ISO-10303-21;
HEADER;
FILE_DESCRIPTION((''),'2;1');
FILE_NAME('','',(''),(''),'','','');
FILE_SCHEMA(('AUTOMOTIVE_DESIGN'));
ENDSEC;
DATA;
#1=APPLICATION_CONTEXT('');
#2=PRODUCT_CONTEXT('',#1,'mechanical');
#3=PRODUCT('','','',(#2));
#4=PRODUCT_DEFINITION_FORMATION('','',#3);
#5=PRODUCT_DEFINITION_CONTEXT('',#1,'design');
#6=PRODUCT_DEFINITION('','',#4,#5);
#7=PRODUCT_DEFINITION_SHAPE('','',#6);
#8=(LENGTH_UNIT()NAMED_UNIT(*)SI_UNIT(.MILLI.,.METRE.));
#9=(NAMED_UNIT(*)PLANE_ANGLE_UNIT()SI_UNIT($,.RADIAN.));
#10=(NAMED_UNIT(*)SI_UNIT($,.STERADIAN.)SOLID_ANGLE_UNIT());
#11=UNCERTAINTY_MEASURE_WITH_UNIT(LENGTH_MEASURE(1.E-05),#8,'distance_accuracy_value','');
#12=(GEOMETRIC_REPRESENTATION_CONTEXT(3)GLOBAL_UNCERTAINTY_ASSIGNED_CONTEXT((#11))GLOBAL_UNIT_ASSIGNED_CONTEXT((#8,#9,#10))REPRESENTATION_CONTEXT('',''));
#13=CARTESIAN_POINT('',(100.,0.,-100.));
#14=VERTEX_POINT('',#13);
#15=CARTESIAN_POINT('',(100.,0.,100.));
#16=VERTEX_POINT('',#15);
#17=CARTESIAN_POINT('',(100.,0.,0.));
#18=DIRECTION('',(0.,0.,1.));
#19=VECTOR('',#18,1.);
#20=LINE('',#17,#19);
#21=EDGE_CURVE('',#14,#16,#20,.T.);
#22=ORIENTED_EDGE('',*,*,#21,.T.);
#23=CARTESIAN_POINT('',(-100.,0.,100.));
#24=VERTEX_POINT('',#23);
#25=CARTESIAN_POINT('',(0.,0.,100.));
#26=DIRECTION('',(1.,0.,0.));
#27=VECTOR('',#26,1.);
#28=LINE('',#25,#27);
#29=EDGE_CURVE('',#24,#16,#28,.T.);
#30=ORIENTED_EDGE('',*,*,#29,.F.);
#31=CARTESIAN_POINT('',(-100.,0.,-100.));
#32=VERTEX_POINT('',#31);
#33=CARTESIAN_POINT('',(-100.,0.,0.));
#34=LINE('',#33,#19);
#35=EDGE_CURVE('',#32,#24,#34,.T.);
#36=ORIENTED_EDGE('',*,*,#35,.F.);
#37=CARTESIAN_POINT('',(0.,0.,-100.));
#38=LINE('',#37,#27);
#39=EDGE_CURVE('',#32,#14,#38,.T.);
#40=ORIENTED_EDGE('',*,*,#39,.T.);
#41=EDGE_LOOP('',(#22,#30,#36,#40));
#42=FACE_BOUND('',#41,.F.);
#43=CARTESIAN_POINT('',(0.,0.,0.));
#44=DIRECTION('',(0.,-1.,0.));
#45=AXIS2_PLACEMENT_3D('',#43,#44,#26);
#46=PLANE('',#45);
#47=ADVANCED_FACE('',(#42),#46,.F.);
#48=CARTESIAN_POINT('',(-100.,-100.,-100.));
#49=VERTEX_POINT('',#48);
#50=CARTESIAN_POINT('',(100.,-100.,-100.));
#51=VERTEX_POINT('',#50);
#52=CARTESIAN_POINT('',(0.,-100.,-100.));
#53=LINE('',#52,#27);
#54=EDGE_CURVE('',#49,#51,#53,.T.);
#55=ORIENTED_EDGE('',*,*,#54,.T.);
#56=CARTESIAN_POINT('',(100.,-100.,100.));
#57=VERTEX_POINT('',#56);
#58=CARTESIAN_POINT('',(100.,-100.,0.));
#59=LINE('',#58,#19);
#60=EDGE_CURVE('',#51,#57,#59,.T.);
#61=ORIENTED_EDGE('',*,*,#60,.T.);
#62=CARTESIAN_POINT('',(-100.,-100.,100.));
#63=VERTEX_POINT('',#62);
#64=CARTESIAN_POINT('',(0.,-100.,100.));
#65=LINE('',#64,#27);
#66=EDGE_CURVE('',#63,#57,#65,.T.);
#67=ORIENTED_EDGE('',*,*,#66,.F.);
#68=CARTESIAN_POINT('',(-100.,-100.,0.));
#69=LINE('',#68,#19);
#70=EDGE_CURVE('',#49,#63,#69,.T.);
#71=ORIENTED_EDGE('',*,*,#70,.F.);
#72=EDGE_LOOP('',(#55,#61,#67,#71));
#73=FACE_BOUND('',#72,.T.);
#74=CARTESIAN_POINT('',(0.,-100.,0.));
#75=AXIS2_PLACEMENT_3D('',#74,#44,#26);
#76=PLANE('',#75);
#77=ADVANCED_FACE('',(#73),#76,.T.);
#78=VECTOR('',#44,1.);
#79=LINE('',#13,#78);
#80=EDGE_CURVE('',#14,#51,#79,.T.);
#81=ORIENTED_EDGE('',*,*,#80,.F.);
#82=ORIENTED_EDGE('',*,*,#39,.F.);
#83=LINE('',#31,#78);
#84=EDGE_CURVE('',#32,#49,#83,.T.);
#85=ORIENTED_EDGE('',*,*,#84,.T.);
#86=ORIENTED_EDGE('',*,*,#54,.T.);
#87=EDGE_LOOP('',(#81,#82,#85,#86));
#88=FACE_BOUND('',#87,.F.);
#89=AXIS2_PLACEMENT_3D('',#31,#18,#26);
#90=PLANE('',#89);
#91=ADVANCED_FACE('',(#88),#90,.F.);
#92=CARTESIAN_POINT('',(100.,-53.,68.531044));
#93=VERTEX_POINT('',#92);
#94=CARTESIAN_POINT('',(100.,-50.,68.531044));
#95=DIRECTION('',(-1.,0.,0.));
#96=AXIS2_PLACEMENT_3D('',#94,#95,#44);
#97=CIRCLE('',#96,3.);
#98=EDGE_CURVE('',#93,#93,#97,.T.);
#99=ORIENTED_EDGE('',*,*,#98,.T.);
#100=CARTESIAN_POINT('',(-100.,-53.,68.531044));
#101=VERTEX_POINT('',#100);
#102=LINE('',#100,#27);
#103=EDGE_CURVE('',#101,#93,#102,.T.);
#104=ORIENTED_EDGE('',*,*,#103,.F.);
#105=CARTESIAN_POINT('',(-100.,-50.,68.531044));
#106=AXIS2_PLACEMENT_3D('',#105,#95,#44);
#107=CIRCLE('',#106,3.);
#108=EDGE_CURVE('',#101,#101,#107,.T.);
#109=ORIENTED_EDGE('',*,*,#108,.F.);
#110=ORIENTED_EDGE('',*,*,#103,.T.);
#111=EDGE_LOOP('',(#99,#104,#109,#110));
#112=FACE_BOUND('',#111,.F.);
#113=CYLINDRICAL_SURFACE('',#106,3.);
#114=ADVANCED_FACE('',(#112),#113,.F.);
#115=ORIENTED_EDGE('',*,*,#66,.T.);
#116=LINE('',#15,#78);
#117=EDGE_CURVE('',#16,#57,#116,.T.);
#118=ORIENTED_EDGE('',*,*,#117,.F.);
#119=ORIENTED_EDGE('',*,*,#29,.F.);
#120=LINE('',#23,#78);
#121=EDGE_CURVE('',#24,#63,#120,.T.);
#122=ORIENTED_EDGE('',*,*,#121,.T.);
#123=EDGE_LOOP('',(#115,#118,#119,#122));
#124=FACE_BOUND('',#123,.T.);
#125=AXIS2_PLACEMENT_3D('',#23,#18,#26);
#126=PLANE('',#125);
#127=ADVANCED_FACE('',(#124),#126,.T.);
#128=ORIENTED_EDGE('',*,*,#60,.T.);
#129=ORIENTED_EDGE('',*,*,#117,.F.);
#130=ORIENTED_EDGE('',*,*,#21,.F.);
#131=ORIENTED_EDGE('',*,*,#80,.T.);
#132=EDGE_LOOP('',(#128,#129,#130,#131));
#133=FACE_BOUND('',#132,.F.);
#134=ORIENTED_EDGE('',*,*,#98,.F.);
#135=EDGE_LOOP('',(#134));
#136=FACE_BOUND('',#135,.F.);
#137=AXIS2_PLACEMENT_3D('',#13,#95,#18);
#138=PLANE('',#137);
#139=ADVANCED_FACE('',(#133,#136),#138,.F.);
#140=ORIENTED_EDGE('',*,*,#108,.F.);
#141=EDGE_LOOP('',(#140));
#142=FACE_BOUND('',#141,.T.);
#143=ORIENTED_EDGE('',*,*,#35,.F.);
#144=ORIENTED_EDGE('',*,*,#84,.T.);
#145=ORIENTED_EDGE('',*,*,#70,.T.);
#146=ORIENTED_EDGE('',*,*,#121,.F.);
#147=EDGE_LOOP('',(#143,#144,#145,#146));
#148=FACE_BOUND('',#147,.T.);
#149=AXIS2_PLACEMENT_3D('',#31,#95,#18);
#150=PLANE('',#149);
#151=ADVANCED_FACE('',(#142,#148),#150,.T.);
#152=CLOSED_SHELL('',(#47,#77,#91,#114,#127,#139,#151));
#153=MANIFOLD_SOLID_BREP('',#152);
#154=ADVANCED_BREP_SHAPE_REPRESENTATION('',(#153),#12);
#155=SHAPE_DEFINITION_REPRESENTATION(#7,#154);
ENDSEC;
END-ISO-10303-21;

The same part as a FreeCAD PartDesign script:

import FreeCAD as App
import Part
import Sketcher

V = App.Vector
Q = App.Units.Quantity


def add_polygon(sketch, points):
    """Adds a closed chain of lines whose ends are joined by coincident constraints."""
    first, n = sketch.GeometryCount, len(points)
    for a, b in zip(points, points[1:] + points[:1]):
        sketch.addGeometry(Part.LineSegment(App.Vector(*a, 0), App.Vector(*b, 0)), False)
    for i in range(n):
        sketch.addConstraint(Sketcher.Constraint("Coincident", first + i, 2, first + (i + 1) % n, 1))

doc = App.newDocument("Part")
params = doc.addObject("Spreadsheet::Sheet", "Params")
for row, (alias, value) in enumerate([
    ("sketch1_width", "200 mm"),
    ("pad1_length", "100 mm"),
    ("sketch2_diameter", "6 mm"),
    ("pocket1_length", "200 mm"),
], start=1):
    params.set(f"A{row}", alias)
    params.set(f"B{row}", "=" + value)
    params.setAlias(f"B{row}", alias)

body = doc.addObject("PartDesign::Body", "Body")

sketch1 = body.newObject("Sketcher::SketchObject", "Sketch")
sketch1.AttachmentSupport = (doc.getObject("XZ_Plane"), [""])
sketch1.MapMode = "FlatFace"
add_polygon(sketch1, [(-100, 100), (-100, -100), (100, -100), (100, 100)])
sketch1.addConstraint(Sketcher.Constraint("Vertical", 0))
sketch1.addConstraint(Sketcher.Constraint("Horizontal", 1))
sketch1.addConstraint(Sketcher.Constraint("Vertical", 2))
sketch1.addConstraint(Sketcher.Constraint("Horizontal", 3))
sketch1.addConstraint(Sketcher.Constraint("Symmetric", 0, 2, 2, 2, -1, 1))
sketch1.addConstraint(Sketcher.Constraint("Equal", 3, 0))
sketch1.addConstraint(Sketcher.Constraint("DistanceX", 1, 1, 1, 2, Q("200 mm")))
sketch1.setExpression("Constraints[10]", "Params.sketch1_width")
pad1 = body.newObject("PartDesign::Pad", "Pad")
pad1.Profile = sketch1
pad1.setExpression("Length", "Params.pad1_length")

sketch2 = body.newObject("Sketcher::SketchObject", "Sketch001")
sketch2.AttachmentSupport = (doc.getObject("YZ_Plane"), [""])
sketch2.MapMode = "FlatFace"
sketch2.AttachmentOffset = App.Placement(V(0, 0, -100), App.Rotation())
sketch2.addGeometry(Part.Circle(V(-50, 68.5, 0), V(0, 0, 1), 3), False)
sketch2.addConstraint(Sketcher.Constraint("Diameter", 0, Q("6 mm")))
sketch2.addConstraint(Sketcher.Constraint("DistanceX", 0, 3, -1, 1, Q("50 mm")))
sketch2.addConstraint(Sketcher.Constraint("DistanceY", -1, 1, 0, 3, Q("68.531044 mm")))
sketch2.setExpression("Constraints[0]", "Params.sketch2_diameter")
pocket1 = body.newObject("PartDesign::Pocket", "Pocket")
pocket1.Profile = sketch2
pocket1.setExpression("Length", "Params.pocket1_length")
pocket1.Reversed = True

doc.recompute()
